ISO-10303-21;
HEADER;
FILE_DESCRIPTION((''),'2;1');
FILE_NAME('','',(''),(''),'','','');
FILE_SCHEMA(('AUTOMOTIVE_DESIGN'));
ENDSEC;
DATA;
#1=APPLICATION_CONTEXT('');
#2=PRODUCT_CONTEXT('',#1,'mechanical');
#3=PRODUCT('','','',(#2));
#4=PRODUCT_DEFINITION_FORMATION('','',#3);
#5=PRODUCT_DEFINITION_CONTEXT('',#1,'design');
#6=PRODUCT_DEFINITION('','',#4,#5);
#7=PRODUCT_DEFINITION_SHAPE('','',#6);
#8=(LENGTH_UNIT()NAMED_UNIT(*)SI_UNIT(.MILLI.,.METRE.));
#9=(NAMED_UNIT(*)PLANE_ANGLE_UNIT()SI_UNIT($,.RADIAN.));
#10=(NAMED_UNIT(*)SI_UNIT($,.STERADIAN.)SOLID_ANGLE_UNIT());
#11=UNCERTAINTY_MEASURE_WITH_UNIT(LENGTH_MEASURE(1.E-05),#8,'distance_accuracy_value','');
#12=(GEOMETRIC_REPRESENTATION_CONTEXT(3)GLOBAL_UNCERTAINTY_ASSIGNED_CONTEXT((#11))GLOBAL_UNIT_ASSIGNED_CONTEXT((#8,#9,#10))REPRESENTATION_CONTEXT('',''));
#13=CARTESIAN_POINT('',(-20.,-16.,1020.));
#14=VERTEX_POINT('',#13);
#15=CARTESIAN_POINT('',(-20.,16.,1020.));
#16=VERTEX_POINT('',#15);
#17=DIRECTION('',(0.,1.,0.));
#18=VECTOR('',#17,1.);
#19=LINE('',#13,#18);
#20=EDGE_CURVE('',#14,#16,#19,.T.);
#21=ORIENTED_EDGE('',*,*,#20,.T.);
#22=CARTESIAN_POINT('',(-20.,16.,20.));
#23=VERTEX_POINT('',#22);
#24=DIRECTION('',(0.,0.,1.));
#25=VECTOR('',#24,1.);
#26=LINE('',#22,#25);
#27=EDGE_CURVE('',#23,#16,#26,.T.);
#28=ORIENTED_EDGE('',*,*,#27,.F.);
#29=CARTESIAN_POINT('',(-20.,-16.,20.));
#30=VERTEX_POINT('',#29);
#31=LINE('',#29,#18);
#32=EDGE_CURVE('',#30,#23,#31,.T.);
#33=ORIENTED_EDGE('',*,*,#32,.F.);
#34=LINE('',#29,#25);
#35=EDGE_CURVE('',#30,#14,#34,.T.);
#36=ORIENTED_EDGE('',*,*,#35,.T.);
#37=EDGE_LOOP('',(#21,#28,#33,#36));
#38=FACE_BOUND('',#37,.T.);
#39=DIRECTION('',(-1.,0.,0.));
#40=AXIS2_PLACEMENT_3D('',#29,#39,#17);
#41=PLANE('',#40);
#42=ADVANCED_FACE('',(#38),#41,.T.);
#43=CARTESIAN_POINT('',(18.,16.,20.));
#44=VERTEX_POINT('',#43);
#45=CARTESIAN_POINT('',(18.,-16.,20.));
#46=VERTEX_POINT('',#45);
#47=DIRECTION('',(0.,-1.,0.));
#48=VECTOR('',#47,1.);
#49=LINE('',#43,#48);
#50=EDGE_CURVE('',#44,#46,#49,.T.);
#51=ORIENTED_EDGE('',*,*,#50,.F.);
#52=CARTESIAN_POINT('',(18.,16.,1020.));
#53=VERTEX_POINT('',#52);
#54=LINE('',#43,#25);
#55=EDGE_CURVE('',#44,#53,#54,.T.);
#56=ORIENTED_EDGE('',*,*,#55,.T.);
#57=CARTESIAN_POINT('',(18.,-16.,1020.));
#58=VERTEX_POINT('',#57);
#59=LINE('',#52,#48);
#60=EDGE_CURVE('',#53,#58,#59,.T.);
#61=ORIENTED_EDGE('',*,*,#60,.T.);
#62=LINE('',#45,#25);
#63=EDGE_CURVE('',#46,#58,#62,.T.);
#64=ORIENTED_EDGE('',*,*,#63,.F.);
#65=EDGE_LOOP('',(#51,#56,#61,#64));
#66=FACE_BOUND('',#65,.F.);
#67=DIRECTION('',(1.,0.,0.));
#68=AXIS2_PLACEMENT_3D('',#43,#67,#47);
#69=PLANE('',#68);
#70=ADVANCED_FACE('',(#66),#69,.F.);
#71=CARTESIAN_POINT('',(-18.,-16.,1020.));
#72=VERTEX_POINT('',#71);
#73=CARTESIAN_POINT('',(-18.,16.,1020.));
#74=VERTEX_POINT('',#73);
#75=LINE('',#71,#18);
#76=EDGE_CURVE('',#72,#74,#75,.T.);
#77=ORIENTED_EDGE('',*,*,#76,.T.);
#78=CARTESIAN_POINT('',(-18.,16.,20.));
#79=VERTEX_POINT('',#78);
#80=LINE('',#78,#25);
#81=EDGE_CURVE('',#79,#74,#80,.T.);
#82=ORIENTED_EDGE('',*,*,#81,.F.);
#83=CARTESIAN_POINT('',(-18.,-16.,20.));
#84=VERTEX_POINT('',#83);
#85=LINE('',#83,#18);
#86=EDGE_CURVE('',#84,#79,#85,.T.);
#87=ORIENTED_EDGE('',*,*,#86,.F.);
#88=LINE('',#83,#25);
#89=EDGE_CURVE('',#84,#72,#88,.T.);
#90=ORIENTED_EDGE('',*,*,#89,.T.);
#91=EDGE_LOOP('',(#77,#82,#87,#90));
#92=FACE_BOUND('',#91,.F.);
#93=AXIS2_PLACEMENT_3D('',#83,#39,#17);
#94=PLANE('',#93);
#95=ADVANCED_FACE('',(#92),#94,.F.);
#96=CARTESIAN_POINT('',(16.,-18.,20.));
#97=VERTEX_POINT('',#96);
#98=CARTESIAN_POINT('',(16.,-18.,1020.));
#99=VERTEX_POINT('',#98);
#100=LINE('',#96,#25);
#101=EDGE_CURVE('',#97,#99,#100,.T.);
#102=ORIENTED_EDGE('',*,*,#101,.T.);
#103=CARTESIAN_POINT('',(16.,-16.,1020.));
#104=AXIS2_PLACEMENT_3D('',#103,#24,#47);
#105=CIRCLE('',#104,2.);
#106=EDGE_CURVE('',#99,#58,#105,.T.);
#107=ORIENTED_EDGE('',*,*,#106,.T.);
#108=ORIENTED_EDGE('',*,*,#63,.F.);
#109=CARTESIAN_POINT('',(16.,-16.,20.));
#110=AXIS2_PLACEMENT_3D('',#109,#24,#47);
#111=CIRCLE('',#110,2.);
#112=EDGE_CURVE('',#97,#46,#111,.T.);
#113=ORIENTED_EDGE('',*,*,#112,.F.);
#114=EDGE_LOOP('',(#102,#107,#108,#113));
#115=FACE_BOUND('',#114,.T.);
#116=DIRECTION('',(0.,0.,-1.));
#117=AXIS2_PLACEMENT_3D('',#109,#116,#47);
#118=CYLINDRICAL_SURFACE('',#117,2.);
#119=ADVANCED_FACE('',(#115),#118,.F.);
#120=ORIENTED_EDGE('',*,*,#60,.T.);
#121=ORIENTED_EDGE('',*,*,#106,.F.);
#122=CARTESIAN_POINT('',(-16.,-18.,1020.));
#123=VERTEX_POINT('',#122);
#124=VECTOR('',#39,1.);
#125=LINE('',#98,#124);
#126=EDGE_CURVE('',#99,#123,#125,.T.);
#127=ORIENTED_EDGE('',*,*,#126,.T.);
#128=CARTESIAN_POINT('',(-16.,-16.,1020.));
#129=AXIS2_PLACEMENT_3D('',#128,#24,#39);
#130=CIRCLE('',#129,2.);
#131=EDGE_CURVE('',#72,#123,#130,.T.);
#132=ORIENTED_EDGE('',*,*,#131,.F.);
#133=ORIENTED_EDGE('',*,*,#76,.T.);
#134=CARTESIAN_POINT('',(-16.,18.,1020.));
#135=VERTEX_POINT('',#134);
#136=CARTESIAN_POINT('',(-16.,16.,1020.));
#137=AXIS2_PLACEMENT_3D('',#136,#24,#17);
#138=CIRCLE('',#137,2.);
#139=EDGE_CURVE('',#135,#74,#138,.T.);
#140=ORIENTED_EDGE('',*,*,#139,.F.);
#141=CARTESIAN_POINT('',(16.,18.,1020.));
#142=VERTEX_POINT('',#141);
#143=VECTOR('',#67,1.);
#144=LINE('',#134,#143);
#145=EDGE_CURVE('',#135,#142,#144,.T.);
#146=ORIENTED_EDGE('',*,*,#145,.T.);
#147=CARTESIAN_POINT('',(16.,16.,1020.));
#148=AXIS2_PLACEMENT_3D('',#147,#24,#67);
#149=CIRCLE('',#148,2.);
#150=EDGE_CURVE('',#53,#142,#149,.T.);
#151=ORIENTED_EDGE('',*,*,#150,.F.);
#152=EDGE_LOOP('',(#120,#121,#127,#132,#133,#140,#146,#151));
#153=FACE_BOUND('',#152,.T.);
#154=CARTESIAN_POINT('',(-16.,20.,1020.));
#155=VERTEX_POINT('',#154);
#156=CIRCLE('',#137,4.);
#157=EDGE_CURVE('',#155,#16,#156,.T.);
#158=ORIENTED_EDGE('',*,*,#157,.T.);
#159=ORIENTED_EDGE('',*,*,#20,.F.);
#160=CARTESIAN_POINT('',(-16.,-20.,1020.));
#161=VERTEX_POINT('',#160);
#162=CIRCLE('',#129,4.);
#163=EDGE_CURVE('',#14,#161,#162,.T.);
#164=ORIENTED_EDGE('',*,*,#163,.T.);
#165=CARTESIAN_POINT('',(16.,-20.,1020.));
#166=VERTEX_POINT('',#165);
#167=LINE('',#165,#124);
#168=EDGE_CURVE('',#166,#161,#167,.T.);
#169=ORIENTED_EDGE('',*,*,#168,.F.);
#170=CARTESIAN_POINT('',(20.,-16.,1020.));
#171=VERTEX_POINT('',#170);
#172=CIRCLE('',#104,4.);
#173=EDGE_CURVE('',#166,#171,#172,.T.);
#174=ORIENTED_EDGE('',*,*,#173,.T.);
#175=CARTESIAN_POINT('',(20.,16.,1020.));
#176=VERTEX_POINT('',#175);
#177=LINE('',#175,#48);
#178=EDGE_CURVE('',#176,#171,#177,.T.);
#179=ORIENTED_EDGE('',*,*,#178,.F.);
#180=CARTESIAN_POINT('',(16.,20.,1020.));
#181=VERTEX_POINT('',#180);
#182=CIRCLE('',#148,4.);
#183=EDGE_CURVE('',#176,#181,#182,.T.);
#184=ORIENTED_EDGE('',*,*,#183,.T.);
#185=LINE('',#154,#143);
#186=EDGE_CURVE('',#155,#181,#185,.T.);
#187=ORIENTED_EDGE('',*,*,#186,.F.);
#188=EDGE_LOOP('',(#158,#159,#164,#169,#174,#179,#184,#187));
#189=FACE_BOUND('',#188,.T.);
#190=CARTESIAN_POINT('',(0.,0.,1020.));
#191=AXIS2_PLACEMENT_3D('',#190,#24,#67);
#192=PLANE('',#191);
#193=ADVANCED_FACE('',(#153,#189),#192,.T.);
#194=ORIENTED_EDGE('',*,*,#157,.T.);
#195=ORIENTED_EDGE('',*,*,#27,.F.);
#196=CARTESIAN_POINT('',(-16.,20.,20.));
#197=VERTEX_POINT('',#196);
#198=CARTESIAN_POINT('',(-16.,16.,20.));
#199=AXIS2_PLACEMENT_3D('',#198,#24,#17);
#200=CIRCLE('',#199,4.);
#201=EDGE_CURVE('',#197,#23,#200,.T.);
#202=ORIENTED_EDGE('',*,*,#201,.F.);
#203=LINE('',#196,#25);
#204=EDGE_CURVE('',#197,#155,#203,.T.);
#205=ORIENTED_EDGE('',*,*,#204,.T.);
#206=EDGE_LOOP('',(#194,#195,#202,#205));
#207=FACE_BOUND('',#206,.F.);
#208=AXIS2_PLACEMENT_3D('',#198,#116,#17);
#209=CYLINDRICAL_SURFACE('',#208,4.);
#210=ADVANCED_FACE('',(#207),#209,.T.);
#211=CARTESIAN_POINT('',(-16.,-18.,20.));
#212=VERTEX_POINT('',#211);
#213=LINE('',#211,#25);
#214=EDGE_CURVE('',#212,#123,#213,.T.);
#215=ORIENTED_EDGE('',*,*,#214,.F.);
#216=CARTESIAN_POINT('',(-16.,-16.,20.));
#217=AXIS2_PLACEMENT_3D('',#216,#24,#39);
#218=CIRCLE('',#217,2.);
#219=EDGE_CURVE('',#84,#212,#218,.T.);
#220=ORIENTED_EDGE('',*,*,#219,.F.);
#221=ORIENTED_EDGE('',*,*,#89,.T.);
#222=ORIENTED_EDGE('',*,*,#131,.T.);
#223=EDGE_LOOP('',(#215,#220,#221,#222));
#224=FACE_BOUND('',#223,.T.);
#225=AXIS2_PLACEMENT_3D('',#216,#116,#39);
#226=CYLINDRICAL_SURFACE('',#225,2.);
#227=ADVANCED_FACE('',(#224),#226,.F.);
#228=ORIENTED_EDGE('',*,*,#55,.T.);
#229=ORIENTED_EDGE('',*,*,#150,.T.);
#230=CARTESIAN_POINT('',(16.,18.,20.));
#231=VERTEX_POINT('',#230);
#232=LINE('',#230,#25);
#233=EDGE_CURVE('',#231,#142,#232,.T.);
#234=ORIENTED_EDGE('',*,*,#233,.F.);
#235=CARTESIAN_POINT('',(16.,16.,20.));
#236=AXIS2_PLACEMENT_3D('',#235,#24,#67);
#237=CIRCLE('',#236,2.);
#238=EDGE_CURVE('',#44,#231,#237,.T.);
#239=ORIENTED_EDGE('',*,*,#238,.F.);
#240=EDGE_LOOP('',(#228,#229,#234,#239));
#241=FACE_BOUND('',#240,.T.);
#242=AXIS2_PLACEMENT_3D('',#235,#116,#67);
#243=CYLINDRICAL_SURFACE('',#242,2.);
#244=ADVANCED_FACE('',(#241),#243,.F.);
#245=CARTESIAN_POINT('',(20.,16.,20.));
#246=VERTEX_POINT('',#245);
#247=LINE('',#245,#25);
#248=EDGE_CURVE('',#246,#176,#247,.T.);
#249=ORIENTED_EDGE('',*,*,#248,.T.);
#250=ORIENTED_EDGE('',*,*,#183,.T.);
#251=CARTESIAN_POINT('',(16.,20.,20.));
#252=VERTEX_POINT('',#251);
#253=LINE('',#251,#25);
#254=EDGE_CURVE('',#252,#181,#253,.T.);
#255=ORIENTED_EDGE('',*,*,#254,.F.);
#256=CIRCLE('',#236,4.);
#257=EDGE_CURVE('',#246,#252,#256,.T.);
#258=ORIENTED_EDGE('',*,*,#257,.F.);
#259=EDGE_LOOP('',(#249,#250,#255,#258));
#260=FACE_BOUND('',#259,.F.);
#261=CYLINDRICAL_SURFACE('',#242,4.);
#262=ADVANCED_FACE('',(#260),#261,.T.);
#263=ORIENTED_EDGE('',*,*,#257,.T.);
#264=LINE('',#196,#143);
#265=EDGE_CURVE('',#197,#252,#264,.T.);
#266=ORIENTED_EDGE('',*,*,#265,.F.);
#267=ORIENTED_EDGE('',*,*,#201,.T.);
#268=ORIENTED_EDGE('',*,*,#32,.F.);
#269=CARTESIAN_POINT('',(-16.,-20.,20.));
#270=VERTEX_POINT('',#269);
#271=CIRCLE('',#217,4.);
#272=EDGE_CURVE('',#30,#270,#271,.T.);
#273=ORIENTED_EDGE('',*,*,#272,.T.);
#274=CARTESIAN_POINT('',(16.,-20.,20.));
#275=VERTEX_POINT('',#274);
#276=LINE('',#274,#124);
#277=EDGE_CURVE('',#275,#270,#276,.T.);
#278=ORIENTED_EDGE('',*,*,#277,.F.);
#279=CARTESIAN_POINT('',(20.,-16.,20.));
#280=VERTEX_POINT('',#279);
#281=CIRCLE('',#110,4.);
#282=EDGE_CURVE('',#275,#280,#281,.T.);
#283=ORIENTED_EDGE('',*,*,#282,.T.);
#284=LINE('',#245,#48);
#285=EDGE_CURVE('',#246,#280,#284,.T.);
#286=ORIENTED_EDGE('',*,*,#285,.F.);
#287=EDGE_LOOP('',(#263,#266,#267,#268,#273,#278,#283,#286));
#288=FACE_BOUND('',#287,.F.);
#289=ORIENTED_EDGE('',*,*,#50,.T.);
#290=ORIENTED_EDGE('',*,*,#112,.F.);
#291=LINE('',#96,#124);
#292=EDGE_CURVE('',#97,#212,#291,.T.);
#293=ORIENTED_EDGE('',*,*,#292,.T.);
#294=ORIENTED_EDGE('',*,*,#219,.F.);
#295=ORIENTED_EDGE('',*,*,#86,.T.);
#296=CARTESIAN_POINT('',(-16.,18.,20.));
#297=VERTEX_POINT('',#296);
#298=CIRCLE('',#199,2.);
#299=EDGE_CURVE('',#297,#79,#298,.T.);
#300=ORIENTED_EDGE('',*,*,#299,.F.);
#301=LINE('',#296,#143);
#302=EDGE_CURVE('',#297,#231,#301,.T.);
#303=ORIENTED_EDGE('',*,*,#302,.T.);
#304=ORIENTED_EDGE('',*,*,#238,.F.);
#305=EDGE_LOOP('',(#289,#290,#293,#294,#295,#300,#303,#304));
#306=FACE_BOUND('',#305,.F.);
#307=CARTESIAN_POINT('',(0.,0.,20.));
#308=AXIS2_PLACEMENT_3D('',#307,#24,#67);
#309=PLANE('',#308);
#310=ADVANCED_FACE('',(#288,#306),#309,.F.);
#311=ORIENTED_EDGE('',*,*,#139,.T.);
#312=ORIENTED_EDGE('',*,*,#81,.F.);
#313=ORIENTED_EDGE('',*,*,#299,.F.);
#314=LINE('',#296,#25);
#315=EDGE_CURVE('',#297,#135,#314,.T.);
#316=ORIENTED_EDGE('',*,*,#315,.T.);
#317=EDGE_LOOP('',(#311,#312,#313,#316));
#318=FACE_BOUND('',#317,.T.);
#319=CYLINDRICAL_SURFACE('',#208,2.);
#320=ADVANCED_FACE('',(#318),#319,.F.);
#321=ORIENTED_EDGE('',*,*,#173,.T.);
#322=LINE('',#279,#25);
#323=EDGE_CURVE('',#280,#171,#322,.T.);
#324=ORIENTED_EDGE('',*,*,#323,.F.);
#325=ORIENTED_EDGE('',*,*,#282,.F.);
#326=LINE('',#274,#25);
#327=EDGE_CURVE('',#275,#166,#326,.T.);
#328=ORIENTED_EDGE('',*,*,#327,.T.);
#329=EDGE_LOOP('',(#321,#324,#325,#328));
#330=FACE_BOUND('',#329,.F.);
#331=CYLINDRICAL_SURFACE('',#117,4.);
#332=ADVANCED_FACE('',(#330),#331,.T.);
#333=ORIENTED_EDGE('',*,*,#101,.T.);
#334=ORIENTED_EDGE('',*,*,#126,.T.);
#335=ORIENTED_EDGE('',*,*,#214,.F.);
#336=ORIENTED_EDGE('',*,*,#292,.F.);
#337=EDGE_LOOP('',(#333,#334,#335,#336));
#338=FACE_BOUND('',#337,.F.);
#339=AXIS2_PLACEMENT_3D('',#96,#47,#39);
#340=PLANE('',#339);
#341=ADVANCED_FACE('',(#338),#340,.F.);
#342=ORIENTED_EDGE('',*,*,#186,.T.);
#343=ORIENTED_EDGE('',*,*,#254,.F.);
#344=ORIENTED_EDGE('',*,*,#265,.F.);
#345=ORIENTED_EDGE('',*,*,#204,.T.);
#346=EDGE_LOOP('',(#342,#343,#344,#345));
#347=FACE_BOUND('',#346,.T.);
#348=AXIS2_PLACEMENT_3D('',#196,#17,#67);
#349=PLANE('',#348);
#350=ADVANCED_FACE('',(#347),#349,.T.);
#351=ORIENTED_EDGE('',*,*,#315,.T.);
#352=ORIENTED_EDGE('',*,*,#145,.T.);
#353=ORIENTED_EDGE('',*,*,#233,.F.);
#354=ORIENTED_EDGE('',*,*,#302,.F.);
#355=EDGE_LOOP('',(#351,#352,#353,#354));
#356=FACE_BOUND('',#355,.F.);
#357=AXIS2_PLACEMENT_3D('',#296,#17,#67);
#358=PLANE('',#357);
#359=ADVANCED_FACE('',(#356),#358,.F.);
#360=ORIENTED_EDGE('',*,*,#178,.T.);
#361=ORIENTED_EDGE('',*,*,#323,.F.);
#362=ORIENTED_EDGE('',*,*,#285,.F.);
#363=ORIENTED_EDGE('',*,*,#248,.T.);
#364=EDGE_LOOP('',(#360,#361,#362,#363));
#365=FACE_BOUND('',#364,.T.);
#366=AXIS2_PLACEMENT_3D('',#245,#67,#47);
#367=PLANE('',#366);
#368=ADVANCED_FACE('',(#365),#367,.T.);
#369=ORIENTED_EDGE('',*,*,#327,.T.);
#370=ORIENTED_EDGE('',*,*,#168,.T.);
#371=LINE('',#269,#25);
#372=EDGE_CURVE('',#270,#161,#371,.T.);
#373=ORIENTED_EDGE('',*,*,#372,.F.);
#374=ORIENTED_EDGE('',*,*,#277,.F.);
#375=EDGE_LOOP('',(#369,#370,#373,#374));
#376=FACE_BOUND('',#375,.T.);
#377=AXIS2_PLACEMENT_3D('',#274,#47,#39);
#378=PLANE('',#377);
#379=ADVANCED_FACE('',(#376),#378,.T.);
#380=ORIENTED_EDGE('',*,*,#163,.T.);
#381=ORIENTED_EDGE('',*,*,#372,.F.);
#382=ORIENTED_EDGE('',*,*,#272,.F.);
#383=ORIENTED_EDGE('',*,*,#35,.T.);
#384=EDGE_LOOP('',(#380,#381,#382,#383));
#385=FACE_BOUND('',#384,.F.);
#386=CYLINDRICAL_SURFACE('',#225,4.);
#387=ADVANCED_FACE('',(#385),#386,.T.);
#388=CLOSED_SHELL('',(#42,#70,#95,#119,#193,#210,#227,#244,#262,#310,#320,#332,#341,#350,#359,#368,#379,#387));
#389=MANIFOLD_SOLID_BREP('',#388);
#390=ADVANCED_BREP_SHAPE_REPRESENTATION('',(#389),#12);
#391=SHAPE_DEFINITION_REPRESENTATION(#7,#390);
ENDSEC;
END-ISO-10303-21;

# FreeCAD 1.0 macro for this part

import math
import FreeCAD as App
import Part
import Sketcher

V = App.Vector
Q = App.Units.Quantity

doc = App.newDocument("Part")
params = doc.addObject("Spreadsheet::Sheet", "Params")
for row, (alias, value) in enumerate([
    ("sketch1_radius", "4 mm"),
    ("sketch1_radius2", "2 mm"),
    ("pad1_length", "1000 mm"),
], start=1):
    params.set(f"A{row}", alias)
    params.set(f"B{row}", "=" + value)
    params.setAlias(f"B{row}", alias)

body = doc.addObject("PartDesign::Body", "Body")

# Sketch on XY plane
sketch1 = body.newObject("Sketcher::SketchObject", "Sketch")
sketch1.AttachmentSupport = (doc.getObject("XY_Plane"), [""])
sketch1.MapMode = "FlatFace"
sketch1.AttachmentOffset = App.Placement(V(0, 0, 20), App.Rotation())
sketch1.addGeometry([
    Part.LineSegment(V(-20, 16, 0), V(-20, -16, 0)),  # 0
    Part.ArcOfCircle(Part.Circle(V(-16, -16, 0), V(0, 0, 1), 4), math.radians(180), math.radians(270)),  # 1
    Part.LineSegment(V(-16, -20, 0), V(16, -20, 0)),  # 2
    Part.ArcOfCircle(Part.Circle(V(16, -16, 0), V(0, 0, 1), 4), math.radians(-90), math.radians(0)),  # 3
    Part.LineSegment(V(20, -16, 0), V(20, 16, 0)),  # 4
    Part.ArcOfCircle(Part.Circle(V(16, 16, 0), V(0, 0, 1), 4), math.radians(0), math.radians(90)),  # 5
    Part.LineSegment(V(16, 20, 0), V(-16, 20, 0)),  # 6
    Part.ArcOfCircle(Part.Circle(V(-16, 16, 0), V(0, 0, 1), 4), math.radians(90), math.radians(180)),  # 7
    Part.ArcOfCircle(Part.Circle(V(-16, 16, 0), V(0, 0, 1), 2), math.radians(90), math.radians(180)),  # 8
    Part.LineSegment(V(-16, 18, 0), V(16, 18, 0)),  # 9
    Part.ArcOfCircle(Part.Circle(V(16, 16, 0), V(0, 0, 1), 2), math.radians(0), math.radians(90)),  # 10
    Part.LineSegment(V(18, 16, 0), V(18, -16, 0)),  # 11
    Part.ArcOfCircle(Part.Circle(V(16, -16, 0), V(0, 0, 1), 2), math.radians(-90), math.radians(0)),  # 12
    Part.LineSegment(V(16, -18, 0), V(-16, -18, 0)),  # 13
    Part.ArcOfCircle(Part.Circle(V(-16, -16, 0), V(0, 0, 1), 2), math.radians(180), math.radians(270)),  # 14
    Part.LineSegment(V(-18, -16, 0), V(-18, 16, 0)),  # 15
], False)
sketch1.addConstraint([
    Sketcher.Constraint("Tangent", 0, 2, 1, 1),
    Sketcher.Constraint("Tangent", 1, 2, 2, 1),
    Sketcher.Constraint("Tangent", 2, 2, 3, 1),
    Sketcher.Constraint("Tangent", 3, 2, 4, 1),
    Sketcher.Constraint("Tangent", 4, 2, 5, 1),
    Sketcher.Constraint("Tangent", 5, 2, 6, 1),
    Sketcher.Constraint("Tangent", 6, 2, 7, 1),
    Sketcher.Constraint("Tangent", 7, 2, 0, 1),
    Sketcher.Constraint("Tangent", 8, 1, 9, 1),
    Sketcher.Constraint("Tangent", 9, 2, 10, 2),
    Sketcher.Constraint("Tangent", 10, 1, 11, 1),
    Sketcher.Constraint("Tangent", 11, 2, 12, 2),
    Sketcher.Constraint("Tangent", 12, 1, 13, 1),
    Sketcher.Constraint("Tangent", 13, 2, 14, 2),
    Sketcher.Constraint("Tangent", 14, 1, 15, 1),
    Sketcher.Constraint("Tangent", 15, 2, 8, 2),
    Sketcher.Constraint("Vertical", 0),
    Sketcher.Constraint("Horizontal", 2),
    Sketcher.Constraint("Vertical", 4),
    Sketcher.Constraint("Horizontal", 6),
    Sketcher.Constraint("Horizontal", 9),
    Sketcher.Constraint("Vertical", 11),
    Sketcher.Constraint("Horizontal", 13),
    Sketcher.Constraint("Vertical", 15),
    Sketcher.Constraint("Coincident", 8, 3, 7, 3),
    Sketcher.Constraint("Coincident", 10, 3, 5, 3),
    Sketcher.Constraint("Coincident", 12, 3, 3, 3),
    Sketcher.Constraint("Equal", 1, 3),
    Sketcher.Constraint("Equal", 3, 5),
    Sketcher.Constraint("Equal", 5, 7),
    Sketcher.Constraint("Equal", 12, 14),
    Sketcher.Constraint("Symmetric", 1, 3, 5, 3, -1, 1),
    Sketcher.Constraint("Equal", 13, 0),
    Sketcher.Constraint("Radius", 1, Q("4 mm")),
    Sketcher.Constraint("Radius", 8, Q("2 mm")),
    Sketcher.Constraint("DistanceX", 0, 2, -1, 1, Q("20 mm")),
])
sketch1.setExpression("Constraints[33]", "Params.sketch1_radius")
sketch1.setExpression("Constraints[34]", "Params.sketch1_radius2")
pad1 = body.newObject("PartDesign::Pad", "Pad")
pad1.Profile = sketch1
pad1.setExpression("Length", "Params.pad1_length")

doc.recompute()
